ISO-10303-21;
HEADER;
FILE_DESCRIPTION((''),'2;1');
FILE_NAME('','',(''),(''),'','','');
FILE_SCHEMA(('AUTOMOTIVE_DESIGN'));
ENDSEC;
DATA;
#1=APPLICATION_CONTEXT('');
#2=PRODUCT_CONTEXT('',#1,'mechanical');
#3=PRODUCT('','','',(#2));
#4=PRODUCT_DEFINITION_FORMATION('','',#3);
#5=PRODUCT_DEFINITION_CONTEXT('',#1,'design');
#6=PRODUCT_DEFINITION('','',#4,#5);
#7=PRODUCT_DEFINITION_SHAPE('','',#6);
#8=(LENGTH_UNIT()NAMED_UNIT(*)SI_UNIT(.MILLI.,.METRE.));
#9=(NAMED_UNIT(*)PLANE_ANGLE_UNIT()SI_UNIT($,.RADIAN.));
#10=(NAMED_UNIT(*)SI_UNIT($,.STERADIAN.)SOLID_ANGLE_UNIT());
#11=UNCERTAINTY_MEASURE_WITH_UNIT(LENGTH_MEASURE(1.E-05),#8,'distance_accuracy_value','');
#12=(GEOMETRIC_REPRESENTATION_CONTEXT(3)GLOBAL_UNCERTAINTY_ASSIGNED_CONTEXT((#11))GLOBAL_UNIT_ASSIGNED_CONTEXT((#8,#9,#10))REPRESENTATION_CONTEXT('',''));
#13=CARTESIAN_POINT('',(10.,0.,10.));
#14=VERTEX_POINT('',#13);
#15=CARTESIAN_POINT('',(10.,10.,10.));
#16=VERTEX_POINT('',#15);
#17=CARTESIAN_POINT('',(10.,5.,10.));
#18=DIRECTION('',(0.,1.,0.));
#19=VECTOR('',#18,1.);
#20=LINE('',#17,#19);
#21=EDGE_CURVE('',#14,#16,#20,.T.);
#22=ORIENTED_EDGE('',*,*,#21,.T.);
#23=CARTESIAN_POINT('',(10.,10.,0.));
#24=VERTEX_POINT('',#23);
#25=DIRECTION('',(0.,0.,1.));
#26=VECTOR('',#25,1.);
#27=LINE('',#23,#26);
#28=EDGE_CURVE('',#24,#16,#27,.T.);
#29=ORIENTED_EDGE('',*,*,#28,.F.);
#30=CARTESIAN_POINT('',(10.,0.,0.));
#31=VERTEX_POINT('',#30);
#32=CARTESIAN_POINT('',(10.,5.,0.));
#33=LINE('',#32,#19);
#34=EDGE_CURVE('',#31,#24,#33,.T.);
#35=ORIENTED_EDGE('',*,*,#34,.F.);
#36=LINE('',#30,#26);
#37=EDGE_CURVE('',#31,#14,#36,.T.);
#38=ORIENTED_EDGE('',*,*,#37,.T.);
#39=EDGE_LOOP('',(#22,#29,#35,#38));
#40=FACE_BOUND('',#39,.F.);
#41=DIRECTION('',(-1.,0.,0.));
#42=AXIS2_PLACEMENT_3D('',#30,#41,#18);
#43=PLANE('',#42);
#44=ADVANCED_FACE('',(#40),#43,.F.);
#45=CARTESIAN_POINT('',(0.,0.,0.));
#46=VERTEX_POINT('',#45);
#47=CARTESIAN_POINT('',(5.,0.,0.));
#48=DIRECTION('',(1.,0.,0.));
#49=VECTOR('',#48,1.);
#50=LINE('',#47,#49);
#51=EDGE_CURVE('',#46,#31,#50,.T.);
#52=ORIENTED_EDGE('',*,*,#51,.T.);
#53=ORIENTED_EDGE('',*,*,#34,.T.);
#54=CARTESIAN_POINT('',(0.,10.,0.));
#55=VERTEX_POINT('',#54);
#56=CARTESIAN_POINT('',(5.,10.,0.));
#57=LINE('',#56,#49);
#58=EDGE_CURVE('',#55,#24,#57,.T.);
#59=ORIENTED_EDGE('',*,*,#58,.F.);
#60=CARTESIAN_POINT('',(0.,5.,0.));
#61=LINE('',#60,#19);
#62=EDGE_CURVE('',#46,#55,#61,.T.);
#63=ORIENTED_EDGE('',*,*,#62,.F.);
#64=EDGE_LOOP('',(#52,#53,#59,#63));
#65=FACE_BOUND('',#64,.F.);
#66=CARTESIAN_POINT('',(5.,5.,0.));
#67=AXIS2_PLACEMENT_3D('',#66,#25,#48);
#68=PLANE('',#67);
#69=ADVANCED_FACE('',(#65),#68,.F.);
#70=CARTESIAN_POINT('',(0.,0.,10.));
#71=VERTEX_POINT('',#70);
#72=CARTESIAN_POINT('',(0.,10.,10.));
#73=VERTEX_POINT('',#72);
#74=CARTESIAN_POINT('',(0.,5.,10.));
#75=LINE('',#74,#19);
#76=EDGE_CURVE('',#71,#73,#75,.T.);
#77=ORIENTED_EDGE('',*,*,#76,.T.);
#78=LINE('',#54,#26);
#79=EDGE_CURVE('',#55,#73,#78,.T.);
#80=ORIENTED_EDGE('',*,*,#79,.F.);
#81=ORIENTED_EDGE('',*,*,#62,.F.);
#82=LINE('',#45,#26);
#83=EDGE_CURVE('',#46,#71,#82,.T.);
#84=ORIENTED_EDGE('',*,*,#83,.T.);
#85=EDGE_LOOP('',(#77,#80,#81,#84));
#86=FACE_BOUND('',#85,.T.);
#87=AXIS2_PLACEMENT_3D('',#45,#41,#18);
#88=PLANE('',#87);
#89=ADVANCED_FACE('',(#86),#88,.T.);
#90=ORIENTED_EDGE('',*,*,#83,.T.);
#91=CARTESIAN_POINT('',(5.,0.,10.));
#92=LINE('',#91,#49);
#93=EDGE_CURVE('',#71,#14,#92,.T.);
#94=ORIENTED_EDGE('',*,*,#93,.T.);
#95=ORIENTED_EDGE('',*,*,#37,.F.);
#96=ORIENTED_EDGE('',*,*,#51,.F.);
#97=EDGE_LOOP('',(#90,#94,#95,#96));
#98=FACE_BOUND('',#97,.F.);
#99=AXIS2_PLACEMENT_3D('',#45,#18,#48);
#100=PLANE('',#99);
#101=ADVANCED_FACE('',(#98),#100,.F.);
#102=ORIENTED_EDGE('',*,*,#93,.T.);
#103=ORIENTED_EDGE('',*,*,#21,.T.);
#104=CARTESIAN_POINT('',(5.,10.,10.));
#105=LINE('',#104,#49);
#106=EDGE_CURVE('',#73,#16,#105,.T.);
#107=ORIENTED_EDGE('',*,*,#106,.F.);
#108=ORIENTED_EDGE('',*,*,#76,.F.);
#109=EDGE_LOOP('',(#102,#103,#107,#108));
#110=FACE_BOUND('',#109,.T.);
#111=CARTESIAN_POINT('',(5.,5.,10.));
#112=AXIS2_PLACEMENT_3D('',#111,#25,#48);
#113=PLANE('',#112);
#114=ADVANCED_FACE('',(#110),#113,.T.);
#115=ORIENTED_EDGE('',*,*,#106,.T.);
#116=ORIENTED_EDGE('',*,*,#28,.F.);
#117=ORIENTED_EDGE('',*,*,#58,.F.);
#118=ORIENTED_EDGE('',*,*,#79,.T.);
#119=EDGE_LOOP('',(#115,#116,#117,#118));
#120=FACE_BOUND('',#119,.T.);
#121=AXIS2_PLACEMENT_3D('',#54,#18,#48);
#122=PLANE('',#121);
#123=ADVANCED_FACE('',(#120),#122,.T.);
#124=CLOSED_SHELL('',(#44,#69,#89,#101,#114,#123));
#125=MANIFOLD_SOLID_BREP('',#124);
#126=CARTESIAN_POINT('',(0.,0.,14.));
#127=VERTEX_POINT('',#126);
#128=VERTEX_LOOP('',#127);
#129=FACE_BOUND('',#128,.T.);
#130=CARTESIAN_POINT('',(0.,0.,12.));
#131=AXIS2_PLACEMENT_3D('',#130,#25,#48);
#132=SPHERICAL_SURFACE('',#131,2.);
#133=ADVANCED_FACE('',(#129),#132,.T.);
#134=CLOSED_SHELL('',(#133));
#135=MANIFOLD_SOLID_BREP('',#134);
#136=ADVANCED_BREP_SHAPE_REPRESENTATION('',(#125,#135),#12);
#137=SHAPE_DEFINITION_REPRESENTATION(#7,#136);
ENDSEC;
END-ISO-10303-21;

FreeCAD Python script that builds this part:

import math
import FreeCAD as App
import Part
import Sketcher
from FreeCAD import Vector

doc = App.newDocument("Part")
body = doc.addObject("PartDesign::Body", "Body")

# Sketch on XY plane
sketch1 = body.newObject("Sketcher::SketchObject", "Sketch")
sketch1.AttachmentSupport = (doc.getObject("XY_Plane"), [""])
sketch1.MapMode = "FlatFace"
sketch1.addGeometry(Part.LineSegment(Vector(0, 10, 0), Vector(0, 0, 0)), False)
sketch1.addGeometry(Part.LineSegment(Vector(0, 0, 0), Vector(10, 0, 0)), False)
sketch1.addGeometry(Part.LineSegment(Vector(10, 0, 0), Vector(10, 10, 0)), False)
sketch1.addGeometry(Part.LineSegment(Vector(10, 10, 0), Vector(0, 10, 0)), False)
sketch1.addConstraint(Sketcher.Constraint("Coincident", 0, 2, 1, 1))
sketch1.addConstraint(Sketcher.Constraint("Coincident", 1, 2, 2, 1))
sketch1.addConstraint(Sketcher.Constraint("Coincident", 2, 2, 3, 1))
sketch1.addConstraint(Sketcher.Constraint("Coincident", 3, 2, 0, 1))
sketch1.addConstraint(Sketcher.Constraint("Vertical", 0))
sketch1.addConstraint(Sketcher.Constraint("Horizontal", 1))
sketch1.addConstraint(Sketcher.Constraint("Vertical", 2))
sketch1.addConstraint(Sketcher.Constraint("Horizontal", 3))
sketch1.addConstraint(Sketcher.Constraint("Coincident", 0, 2, -1, 1))
sketch1.addConstraint(Sketcher.Constraint("Equal", 3, 0))
sketch1.addConstraint(Sketcher.Constraint("DistanceX", 1, 1, 1, 2, 10.0))
pad1 = body.newObject("PartDesign::Pad", "Pad")
pad1.Profile = sketch1
pad1.Length = 10
body2 = doc.addObject("PartDesign::Body", "Body001")

# Sketch on XZ plane
sketch2 = body2.newObject("Sketcher::SketchObject", "Sketch001")
sketch2.AttachmentSupport = (doc.getObject("XZ_Plane001"), [""])
sketch2.MapMode = "FlatFace"
sketch2.addGeometry(Part.ArcOfCircle(Part.Circle(Vector(0, 12, 0), Vector(0, 0, 1), 2), math.radians(-90), math.radians(90)), False)
sketch2.addGeometry(Part.LineSegment(Vector(0, 14, 0), Vector(0, 10, 0)), False)
sketch2.addConstraint(Sketcher.Constraint("Coincident", 0, 1, 1, 2))
sketch2.addConstraint(Sketcher.Constraint("Coincident", 1, 1, 0, 2))
sketch2.addConstraint(Sketcher.Constraint("Vertical", 1))
sketch2.addConstraint(Sketcher.Constraint("PointOnObject", 0, 3, -2))
sketch2.addConstraint(Sketcher.Constraint("PointOnObject", 0, 1, -2))
sketch2.addConstraint(Sketcher.Constraint("Radius", 0, 2.0))
sketch2.addConstraint(Sketcher.Constraint("DistanceY", -1, 1, 0, 3, 12.0))
revolution = body2.newObject("PartDesign::Revolution", "Revolution")
revolution.Profile = sketch2
revolution.ReferenceAxis = (sketch2, ["V_Axis"])
revolution.Angle = 360

doc.recompute()
